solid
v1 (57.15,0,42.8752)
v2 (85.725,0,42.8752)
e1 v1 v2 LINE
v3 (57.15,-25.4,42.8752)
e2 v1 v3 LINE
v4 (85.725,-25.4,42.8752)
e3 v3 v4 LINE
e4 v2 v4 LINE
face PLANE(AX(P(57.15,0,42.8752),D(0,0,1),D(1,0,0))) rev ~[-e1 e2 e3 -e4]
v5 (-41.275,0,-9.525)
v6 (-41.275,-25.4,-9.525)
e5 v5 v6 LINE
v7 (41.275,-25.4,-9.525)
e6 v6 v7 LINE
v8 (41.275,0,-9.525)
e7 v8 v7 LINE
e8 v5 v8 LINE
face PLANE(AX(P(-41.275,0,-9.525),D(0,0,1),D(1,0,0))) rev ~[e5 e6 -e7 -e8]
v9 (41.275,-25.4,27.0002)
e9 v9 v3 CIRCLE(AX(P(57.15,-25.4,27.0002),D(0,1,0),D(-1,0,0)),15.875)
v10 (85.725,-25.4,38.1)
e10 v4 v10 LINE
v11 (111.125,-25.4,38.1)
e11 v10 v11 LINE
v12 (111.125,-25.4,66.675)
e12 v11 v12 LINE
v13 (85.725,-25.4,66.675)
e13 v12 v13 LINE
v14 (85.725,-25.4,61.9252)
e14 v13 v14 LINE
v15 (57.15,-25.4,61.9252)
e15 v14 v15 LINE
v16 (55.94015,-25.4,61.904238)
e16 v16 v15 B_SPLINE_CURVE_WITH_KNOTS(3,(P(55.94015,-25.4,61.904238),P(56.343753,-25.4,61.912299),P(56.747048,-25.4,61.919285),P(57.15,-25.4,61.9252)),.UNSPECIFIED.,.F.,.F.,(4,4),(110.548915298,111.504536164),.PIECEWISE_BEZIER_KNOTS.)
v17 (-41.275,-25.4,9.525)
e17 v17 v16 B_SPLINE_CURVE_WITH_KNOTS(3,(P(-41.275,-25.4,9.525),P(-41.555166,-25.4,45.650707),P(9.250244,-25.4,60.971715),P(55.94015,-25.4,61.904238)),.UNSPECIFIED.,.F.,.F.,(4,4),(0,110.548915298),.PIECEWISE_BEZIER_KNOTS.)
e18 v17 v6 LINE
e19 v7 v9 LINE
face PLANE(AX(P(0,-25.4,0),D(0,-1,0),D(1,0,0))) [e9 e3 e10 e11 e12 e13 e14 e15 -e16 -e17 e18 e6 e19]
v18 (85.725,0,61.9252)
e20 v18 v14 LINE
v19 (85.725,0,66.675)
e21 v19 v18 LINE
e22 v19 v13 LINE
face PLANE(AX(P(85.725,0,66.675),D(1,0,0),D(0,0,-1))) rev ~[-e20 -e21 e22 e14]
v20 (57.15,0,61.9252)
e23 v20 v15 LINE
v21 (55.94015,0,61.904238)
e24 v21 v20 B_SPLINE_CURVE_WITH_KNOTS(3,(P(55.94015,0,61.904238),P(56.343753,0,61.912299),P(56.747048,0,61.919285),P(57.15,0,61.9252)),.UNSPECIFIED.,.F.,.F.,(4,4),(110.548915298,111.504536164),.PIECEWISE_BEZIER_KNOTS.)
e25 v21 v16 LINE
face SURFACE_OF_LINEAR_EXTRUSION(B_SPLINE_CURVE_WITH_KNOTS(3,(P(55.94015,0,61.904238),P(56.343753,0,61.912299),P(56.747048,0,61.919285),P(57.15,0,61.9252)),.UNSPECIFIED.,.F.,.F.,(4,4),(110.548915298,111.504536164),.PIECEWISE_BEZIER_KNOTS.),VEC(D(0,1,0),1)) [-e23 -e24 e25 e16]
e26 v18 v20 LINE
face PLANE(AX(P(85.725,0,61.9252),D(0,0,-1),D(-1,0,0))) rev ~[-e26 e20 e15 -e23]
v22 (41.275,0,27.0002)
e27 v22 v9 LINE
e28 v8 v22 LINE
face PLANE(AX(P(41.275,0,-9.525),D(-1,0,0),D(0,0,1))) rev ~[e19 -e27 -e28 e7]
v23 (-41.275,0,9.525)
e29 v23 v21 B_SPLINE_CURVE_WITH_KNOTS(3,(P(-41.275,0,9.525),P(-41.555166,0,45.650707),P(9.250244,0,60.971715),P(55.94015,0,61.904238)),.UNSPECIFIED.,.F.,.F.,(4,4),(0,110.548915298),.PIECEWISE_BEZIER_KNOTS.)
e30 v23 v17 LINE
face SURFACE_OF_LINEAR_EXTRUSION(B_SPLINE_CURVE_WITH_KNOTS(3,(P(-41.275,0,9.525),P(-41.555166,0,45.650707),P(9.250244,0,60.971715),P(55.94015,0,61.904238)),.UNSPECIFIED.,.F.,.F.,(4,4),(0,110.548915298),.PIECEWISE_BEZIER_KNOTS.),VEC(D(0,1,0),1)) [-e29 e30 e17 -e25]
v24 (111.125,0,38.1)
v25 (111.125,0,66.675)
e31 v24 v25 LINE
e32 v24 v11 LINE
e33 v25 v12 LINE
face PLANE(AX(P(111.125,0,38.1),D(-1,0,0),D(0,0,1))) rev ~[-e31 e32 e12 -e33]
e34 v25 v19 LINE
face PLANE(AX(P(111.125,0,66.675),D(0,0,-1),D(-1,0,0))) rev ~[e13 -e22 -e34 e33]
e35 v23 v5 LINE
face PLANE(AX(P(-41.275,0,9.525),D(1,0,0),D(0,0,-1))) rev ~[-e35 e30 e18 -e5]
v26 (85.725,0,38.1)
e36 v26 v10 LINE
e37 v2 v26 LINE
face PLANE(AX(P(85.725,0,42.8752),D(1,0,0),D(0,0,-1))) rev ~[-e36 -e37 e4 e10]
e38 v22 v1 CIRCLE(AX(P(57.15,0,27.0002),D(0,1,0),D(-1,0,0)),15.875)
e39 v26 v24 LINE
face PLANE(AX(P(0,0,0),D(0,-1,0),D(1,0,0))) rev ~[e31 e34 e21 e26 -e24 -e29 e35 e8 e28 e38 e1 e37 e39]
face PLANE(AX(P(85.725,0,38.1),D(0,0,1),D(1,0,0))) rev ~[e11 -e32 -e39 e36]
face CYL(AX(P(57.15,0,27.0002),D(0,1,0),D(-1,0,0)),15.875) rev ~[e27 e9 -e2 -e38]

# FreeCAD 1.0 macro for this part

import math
import FreeCAD as App
import Part
import Sketcher
Q = App.Units.Quantity

doc = App.newDocument("Part")
body = doc.addObject("PartDesign::Body", "Body")

# Sketch on XZ plane
sketch1 = body.newObject("Sketcher::SketchObject", "Sketch")
sketch1.AttachmentSupport = (doc.getObject("XZ_Plane"), [""])
sketch1.MapMode = "FlatFace"
sketch1.addGeometry(Part.LineSegment(App.Vector(-41.275, -9.525, 0), App.Vector(41.275, -9.525, 0)), False)
sketch1.addGeometry(Part.LineSegment(App.Vector(41.275, -9.525, 0), App.Vector(41.275, 27.0002, 0)), False)
sketch1.addGeometry(Part.ArcOfCircle(Part.Circle(App.Vector(57.15, 27.0002, 0), App.Vector(0, 0, 1), 15.875), math.radians(90), math.radians(180)), False)
sketch1.addGeometry(Part.LineSegment(App.Vector(57.15, 42.8752, 0), App.Vector(85.725, 42.8752, 0)), False)
sketch1.addGeometry(Part.LineSegment(App.Vector(85.725, 42.8752, 0), App.Vector(85.725, 38.1, 0)), False)
sketch1.addGeometry(Part.LineSegment(App.Vector(85.725, 38.1, 0), App.Vector(111.125, 38.1, 0)), False)
sketch1.addGeometry(Part.LineSegment(App.Vector(111.125, 38.1, 0), App.Vector(111.125, 66.675, 0)), False)
sketch1.addGeometry(Part.LineSegment(App.Vector(111.125, 66.675, 0), App.Vector(85.725, 66.675, 0)), False)
sketch1.addGeometry(Part.LineSegment(App.Vector(85.725, 66.675, 0), App.Vector(85.725, 61.9252, 0)), False)
sketch1.addGeometry(Part.LineSegment(App.Vector(85.725, 61.9252, 0), App.Vector(57.15, 61.9252, 0)), False)
sketch1.addGeometry(Part.BSplineCurve([App.Vector(55.94015, 61.904238, 0), App.Vector(56.343753, 61.912299, 0), App.Vector(56.747048, 61.919285, 0), App.Vector(57.15, 61.9252, 0)], [4, 4], [110.548915298, 111.504536164], False, 3, [1, 1, 1, 1], False), False)
sketch1.addGeometry(Part.BSplineCurve([App.Vector(-41.275, 9.525, 0), App.Vector(-41.555166, 45.650707, 0), App.Vector(9.250244, 60.971715, 0), App.Vector(55.94015, 61.904238, 0)], [4, 4], [0, 110.548915298], False, 3, [1, 1, 1, 1], False), False)
sketch1.addGeometry(Part.LineSegment(App.Vector(-41.275, 9.525, 0), App.Vector(-41.275, -9.525, 0)), False)
sketch1.addConstraint(Sketcher.Constraint("Block", 10))
sketch1.addConstraint(Sketcher.Constraint("Block", 11))
sketch1.addConstraint(Sketcher.Constraint("Coincident", 0, 2, 1, 1))
sketch1.addConstraint(Sketcher.Constraint("Tangent", 1, 2, 2, 2))
sketch1.addConstraint(Sketcher.Constraint("Tangent", 2, 1, 3, 1))
sketch1.addConstraint(Sketcher.Constraint("Coincident", 3, 2, 4, 1))
sketch1.addConstraint(Sketcher.Constraint("Coincident", 4, 2, 5, 1))
sketch1.addConstraint(Sketcher.Constraint("Coincident", 5, 2, 6, 1))
sketch1.addConstraint(Sketcher.Constraint("Coincident", 6, 2, 7, 1))
sketch1.addConstraint(Sketcher.Constraint("Coincident", 7, 2, 8, 1))
sketch1.addConstraint(Sketcher.Constraint("Coincident", 8, 2, 9, 1))
sketch1.addConstraint(Sketcher.Constraint("Coincident", 9, 2, 10, 2))
sketch1.addConstraint(Sketcher.Constraint("Coincident", 11, 1, 12, 1))
sketch1.addConstraint(Sketcher.Constraint("Coincident", 12, 2, 0, 1))
sketch1.addConstraint(Sketcher.Constraint("Horizontal", 0))
sketch1.addConstraint(Sketcher.Constraint("Vertical", 1))
sketch1.addConstraint(Sketcher.Constraint("Horizontal", 3))
sketch1.addConstraint(Sketcher.Constraint("Vertical", 4))
sketch1.addConstraint(Sketcher.Constraint("Horizontal", 5))
sketch1.addConstraint(Sketcher.Constraint("Vertical", 6))
sketch1.addConstraint(Sketcher.Constraint("Horizontal", 7))
sketch1.addConstraint(Sketcher.Constraint("Vertical", 8))
sketch1.addConstraint(Sketcher.Constraint("Horizontal", 9))
sketch1.addConstraint(Sketcher.Constraint("Vertical", 12))
sketch1.addConstraint(Sketcher.Constraint("Vertical", 4, 2, 7, 2))
sketch1.addConstraint(Sketcher.Constraint("Vertical", 2, 1, 9, 2))
sketch1.addConstraint(Sketcher.Constraint("Equal", 9, 6))
sketch1.addConstraint(Sketcher.Constraint("DistanceX", 5, 1, 5, 2, Q("1 in")))
sketch1.addConstraint(Sketcher.Constraint("Radius", 2, Q("0.625 in")))
sketch1.addConstraint(Sketcher.Constraint("DistanceY", 12, 2, 12, 1, Q("0.75 in")))
sketch1.addConstraint(Sketcher.Constraint("DistanceY", -1, 1, 4, 2, Q("1.5 in")))
sketch1.addConstraint(Sketcher.Constraint("DistanceX", 3, 1, 3, 2, Q("1.125 in")))
sketch1.addConstraint(Sketcher.Constraint("DistanceY", 1, 1, 1, 2, Q("1.438 in")))
pad1 = body.newObject("PartDesign::Pad", "Pad")
pad1.Profile = sketch1
pad1.Length = Q("1 in")

doc.recompute()
